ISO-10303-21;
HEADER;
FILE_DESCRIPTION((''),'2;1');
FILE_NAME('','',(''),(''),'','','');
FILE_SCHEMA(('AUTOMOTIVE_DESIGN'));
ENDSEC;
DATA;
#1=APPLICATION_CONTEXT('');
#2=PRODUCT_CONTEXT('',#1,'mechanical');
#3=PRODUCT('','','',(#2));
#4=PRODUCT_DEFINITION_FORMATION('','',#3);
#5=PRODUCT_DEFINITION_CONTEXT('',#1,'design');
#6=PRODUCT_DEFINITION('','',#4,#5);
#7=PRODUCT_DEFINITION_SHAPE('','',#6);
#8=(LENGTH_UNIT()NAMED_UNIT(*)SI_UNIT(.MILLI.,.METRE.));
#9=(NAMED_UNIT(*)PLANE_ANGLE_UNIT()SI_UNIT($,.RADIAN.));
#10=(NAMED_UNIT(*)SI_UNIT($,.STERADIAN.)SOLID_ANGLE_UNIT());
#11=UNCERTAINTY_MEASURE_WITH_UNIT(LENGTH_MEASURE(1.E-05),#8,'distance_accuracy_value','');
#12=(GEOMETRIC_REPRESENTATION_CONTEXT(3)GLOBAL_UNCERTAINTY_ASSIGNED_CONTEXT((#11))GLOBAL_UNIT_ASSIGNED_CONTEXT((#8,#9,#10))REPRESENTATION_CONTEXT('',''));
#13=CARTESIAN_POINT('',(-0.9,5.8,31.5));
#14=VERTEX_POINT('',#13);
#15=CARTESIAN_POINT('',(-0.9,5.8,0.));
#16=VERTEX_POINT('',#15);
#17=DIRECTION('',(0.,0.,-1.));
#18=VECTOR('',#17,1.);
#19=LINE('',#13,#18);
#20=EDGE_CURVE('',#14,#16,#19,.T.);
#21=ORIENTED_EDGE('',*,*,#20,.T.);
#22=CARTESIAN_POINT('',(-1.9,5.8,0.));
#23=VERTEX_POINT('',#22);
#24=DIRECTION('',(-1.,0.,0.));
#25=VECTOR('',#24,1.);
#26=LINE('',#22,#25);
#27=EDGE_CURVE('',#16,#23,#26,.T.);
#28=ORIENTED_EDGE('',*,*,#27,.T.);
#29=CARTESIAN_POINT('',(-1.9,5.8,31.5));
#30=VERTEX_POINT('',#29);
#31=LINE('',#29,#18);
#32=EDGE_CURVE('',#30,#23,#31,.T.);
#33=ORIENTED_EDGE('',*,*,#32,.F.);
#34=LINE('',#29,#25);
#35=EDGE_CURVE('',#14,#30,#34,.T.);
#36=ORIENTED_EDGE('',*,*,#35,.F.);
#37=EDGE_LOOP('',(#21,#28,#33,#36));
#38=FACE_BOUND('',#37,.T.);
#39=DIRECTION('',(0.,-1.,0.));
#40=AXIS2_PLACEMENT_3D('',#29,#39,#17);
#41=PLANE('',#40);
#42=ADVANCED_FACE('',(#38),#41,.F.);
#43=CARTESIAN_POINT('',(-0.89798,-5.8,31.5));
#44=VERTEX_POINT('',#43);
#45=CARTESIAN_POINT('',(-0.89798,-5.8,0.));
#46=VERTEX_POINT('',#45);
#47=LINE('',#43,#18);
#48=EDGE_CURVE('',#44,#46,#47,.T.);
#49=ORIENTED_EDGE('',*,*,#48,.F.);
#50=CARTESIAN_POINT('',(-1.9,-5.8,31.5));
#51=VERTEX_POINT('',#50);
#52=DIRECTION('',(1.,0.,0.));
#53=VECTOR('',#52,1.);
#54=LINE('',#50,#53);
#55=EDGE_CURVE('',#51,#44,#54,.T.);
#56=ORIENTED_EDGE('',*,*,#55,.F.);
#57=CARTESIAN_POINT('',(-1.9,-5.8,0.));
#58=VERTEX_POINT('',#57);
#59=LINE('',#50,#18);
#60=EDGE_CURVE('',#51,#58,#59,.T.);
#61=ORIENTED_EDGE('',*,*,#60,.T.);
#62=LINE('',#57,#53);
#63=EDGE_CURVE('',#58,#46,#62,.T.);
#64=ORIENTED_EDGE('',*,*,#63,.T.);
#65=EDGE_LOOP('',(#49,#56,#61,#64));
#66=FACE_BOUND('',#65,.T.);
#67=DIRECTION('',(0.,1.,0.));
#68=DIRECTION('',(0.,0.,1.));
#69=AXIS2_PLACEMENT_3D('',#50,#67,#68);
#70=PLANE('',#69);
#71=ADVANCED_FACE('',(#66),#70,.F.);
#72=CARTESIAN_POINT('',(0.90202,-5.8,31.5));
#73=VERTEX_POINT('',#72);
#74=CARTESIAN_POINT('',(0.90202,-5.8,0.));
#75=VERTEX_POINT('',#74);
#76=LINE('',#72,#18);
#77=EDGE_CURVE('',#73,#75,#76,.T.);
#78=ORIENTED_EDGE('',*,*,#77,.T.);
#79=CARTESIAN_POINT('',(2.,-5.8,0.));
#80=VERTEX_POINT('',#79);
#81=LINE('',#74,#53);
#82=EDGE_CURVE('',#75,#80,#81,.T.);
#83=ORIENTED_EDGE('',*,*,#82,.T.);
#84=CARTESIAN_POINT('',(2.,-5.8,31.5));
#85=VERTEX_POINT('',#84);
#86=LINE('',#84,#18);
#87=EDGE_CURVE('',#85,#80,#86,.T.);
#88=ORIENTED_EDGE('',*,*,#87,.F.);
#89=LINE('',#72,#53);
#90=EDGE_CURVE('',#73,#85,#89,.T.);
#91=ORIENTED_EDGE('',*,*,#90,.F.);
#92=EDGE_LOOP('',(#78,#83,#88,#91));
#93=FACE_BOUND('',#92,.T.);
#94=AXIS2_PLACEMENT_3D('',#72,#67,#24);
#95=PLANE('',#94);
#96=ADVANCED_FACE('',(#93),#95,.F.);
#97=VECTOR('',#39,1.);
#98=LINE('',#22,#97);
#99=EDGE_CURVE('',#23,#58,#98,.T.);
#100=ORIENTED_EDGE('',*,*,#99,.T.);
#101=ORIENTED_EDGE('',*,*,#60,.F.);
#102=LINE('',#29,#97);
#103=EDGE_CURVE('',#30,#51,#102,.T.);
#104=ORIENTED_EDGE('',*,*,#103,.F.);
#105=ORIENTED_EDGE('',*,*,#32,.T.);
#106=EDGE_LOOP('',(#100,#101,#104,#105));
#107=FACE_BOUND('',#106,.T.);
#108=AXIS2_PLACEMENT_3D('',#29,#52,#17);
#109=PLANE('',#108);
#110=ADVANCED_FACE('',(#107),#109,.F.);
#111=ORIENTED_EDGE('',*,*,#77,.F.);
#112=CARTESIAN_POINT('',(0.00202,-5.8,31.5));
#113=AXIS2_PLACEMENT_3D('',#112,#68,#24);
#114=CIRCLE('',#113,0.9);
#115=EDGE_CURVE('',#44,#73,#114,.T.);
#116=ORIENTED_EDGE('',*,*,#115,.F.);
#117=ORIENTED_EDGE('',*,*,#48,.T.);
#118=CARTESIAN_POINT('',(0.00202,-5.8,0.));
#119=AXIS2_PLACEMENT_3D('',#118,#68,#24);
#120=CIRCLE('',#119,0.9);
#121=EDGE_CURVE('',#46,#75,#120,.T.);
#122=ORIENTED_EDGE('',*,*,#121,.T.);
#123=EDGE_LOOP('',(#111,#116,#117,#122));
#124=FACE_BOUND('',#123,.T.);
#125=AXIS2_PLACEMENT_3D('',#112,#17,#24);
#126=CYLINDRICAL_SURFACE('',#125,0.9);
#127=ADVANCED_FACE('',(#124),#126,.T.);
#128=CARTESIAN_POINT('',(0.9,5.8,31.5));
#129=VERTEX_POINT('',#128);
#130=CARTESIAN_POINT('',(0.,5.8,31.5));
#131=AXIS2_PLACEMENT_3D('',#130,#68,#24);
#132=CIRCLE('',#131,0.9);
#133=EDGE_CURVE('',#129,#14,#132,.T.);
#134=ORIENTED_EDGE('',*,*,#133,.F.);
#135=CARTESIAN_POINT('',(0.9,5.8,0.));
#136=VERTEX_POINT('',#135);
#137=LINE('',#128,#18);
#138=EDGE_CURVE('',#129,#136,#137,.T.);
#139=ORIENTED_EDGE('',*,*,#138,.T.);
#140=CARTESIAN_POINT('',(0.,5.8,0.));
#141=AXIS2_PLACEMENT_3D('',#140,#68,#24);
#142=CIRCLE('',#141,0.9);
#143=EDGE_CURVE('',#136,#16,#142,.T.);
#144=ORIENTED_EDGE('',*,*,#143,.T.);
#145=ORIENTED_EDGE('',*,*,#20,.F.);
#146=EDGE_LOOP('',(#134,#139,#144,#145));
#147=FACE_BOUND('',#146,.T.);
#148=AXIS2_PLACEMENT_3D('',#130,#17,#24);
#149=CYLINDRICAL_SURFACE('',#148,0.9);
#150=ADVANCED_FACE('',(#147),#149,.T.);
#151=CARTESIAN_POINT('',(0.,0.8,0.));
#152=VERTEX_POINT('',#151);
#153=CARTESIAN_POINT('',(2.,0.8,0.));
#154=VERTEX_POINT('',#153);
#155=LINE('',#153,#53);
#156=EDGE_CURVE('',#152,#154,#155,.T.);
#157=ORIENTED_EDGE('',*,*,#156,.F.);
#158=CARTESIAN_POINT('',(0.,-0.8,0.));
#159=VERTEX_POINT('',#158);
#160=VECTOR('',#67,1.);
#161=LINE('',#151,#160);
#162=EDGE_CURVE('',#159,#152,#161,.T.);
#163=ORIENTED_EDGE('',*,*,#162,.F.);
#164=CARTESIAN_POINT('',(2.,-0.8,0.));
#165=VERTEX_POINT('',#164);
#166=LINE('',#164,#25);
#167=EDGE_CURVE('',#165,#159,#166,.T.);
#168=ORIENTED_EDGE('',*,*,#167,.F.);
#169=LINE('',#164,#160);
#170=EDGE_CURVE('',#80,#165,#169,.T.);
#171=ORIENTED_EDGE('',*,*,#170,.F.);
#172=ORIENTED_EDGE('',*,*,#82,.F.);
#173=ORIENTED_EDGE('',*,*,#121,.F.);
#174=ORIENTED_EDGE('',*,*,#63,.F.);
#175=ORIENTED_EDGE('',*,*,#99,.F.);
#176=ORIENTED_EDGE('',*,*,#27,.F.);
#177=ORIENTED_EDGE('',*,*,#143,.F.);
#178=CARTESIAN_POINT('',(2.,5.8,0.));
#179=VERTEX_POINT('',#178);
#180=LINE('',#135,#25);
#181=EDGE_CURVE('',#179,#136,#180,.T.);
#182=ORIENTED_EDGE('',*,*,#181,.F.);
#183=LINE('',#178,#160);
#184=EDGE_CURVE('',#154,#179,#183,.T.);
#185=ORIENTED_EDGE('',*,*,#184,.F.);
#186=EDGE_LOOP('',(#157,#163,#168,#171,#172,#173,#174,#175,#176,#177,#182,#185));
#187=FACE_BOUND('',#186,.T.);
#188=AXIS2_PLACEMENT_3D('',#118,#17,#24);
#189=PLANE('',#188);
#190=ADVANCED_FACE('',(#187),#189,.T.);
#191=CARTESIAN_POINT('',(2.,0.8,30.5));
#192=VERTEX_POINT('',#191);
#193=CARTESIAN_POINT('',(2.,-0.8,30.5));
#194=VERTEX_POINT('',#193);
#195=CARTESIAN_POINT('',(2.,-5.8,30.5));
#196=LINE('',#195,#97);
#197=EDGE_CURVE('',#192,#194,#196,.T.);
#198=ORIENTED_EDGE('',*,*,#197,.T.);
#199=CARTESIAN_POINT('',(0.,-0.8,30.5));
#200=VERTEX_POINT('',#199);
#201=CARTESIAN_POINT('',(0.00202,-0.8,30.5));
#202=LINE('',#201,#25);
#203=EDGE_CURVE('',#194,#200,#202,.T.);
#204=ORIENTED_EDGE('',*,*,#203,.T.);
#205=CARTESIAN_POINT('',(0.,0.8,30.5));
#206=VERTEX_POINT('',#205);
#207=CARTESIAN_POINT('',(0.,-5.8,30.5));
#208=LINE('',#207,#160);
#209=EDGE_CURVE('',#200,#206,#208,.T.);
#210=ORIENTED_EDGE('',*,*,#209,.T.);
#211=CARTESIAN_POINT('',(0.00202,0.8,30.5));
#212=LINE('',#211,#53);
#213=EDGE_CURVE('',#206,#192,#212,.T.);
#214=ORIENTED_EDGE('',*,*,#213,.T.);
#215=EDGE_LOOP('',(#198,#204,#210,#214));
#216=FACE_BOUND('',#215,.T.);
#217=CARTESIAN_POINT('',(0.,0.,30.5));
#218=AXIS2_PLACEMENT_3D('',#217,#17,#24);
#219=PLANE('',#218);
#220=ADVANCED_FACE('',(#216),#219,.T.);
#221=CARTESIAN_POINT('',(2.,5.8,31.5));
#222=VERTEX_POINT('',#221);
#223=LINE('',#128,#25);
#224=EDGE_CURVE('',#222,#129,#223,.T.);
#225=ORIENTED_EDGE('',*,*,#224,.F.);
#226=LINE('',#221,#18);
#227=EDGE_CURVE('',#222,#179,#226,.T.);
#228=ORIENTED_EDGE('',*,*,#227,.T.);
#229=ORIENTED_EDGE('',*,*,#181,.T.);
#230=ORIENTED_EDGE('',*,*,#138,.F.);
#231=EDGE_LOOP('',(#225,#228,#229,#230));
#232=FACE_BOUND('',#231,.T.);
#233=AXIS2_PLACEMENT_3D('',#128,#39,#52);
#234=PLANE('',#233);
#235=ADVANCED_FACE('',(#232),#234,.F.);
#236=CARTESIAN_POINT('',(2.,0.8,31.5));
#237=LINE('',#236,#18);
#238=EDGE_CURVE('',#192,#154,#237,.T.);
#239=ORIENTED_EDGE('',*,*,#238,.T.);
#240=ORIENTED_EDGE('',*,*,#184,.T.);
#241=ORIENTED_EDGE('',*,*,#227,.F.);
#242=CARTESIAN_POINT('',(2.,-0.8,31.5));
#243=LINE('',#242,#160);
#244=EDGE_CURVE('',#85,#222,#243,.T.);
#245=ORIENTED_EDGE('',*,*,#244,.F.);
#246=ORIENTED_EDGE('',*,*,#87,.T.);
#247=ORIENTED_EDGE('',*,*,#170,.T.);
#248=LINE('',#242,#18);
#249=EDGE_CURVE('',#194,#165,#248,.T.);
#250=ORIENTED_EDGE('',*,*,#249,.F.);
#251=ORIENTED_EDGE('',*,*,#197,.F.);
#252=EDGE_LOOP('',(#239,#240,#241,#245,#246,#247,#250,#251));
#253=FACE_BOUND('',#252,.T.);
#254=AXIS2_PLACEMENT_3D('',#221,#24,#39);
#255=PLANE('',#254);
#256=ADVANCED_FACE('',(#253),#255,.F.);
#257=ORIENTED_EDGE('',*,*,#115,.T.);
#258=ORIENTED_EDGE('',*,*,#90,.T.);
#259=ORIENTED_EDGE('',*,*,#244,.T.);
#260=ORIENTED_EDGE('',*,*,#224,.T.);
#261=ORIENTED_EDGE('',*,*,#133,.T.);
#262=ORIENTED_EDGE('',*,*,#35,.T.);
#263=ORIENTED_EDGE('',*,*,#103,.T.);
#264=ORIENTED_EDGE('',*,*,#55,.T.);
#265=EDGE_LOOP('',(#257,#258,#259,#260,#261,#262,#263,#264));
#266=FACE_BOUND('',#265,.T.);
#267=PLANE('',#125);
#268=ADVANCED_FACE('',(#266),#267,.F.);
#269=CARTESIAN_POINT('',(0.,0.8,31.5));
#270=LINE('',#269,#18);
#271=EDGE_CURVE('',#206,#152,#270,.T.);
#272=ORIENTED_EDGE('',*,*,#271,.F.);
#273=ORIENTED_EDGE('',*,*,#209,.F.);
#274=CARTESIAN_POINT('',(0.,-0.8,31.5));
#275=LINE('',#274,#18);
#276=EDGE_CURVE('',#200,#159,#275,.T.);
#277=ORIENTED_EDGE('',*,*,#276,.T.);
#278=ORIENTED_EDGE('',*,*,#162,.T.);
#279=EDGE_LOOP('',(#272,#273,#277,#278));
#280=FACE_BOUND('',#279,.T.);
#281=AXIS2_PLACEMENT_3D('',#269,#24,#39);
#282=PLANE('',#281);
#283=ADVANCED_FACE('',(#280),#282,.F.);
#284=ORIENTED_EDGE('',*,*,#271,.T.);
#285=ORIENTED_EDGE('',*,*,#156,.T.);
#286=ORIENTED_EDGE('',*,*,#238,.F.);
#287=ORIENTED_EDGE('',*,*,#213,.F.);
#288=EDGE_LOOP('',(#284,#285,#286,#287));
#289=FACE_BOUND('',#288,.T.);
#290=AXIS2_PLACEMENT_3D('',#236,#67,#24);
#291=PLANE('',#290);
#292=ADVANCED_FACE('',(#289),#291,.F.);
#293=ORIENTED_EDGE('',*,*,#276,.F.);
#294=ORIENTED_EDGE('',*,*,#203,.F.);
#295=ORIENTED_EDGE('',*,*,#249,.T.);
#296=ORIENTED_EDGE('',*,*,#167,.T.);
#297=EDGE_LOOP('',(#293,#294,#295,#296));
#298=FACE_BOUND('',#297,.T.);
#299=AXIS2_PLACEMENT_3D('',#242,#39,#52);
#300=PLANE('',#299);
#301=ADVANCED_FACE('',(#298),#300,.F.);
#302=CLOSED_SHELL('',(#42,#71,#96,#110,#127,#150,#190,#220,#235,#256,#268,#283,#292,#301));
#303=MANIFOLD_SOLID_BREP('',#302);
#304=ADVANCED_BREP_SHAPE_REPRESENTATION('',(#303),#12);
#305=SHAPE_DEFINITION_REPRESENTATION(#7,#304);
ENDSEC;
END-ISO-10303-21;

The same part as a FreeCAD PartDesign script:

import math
import FreeCAD as App
import Part
import Sketcher
from FreeCAD import Vector

doc = App.newDocument("Part")
params = doc.addObject("Spreadsheet::Sheet", "Params")
for row, (alias, value) in enumerate([
    ("sketch1_radius", "0.9 mm"),
    ("sketch1_width", "1 mm"),
    ("sketch1_width2", "2 mm"),
    ("sketch1_height", "5 mm"),
    ("sketch1_height2", "11.6 mm"),
    ("pad1_length", "31.5 mm"),
    ("sketch2_width", "2 mm"),
    ("sketch2_height", "1.6 mm"),
    ("pad2_length", "1 mm"),
], start=1):
    params.set(f"A{row}", alias)
    params.set(f"B{row}", "=" + value)
    params.setAlias(f"B{row}", alias)

body = doc.addObject("PartDesign::Body", "Body")

# Sketch on XY plane
sketch1 = body.newObject("Sketcher::SketchObject", "Sketch")
sketch1.AttachmentSupport = (doc.getObject("XY_Plane"), [""])
sketch1.MapMode = "FlatFace"
sketch1.addGeometry([
    Part.LineSegment(Vector(-0.9, 5.8, 0), Vector(-1.9, 5.8, 0)),  # 0
    Part.LineSegment(Vector(-1.9, 5.8, 0), Vector(-1.9, -5.8, 0)),  # 1
    Part.LineSegment(Vector(-1.9, -5.8, 0), Vector(-0.9, -5.8, 0)),  # 2
    Part.ArcOfCircle(Part.Circle(Vector(0, -5.8, 0), Vector(0, 0, 1), 0.9), math.radians(180), math.radians(360)),  # 3
    Part.LineSegment(Vector(0.9, -5.8, 0), Vector(2, -5.8, 0)),  # 4
    Part.LineSegment(Vector(2, -5.8, 0), Vector(2, -0.8, 0)),  # 5
    Part.LineSegment(Vector(2, -0.8, 0), Vector(0, -0.8, 0)),  # 6
    Part.LineSegment(Vector(0, -0.8, 0), Vector(0, 0.8, 0)),  # 7
    Part.LineSegment(Vector(0, 0.8, 0), Vector(2, 0.8, 0)),  # 8
    Part.LineSegment(Vector(2, 0.8, 0), Vector(2, 5.8, 0)),  # 9
    Part.LineSegment(Vector(2, 5.8, 0), Vector(0.9, 5.8, 0)),  # 10
    Part.ArcOfCircle(Part.Circle(Vector(0, 5.8, 0), Vector(0, 0, 1), 0.9), math.radians(0), math.radians(180)),  # 11
], False)
sketch1.addConstraint([
    Sketcher.Constraint("Coincident", 0, 2, 1, 1),
    Sketcher.Constraint("Coincident", 1, 2, 2, 1),
    Sketcher.Constraint("Coincident", 2, 2, 3, 1),
    Sketcher.Constraint("Coincident", 3, 2, 4, 1),
    Sketcher.Constraint("Coincident", 4, 2, 5, 1),
    Sketcher.Constraint("Coincident", 5, 2, 6, 1),
    Sketcher.Constraint("Coincident", 6, 2, 7, 1),
    Sketcher.Constraint("Coincident", 7, 2, 8, 1),
    Sketcher.Constraint("Coincident", 8, 2, 9, 1),
    Sketcher.Constraint("Coincident", 9, 2, 10, 1),
    Sketcher.Constraint("Coincident", 10, 2, 11, 1),
    Sketcher.Constraint("Coincident", 11, 2, 0, 1),
    Sketcher.Constraint("Horizontal", 0),
    Sketcher.Constraint("Vertical", 1),
    Sketcher.Constraint("Horizontal", 2),
    Sketcher.Constraint("Horizontal", 4),
    Sketcher.Constraint("Vertical", 5),
    Sketcher.Constraint("Horizontal", 6),
    Sketcher.Constraint("Vertical", 7),
    Sketcher.Constraint("Horizontal", 8),
    Sketcher.Constraint("Vertical", 9),
    Sketcher.Constraint("Horizontal", 10),
    Sketcher.Constraint("Equal", 3, 11),
    Sketcher.Constraint("Symmetric", 6, 2, 7, 2, -1, 1),
    Sketcher.Constraint("Symmetric", 10, 2, 11, 2, -2),
    Sketcher.Constraint("Symmetric", 4, 2, 9, 2, -1),
    Sketcher.Constraint("Horizontal", 11, 3, 0, 2),
    Sketcher.Constraint("Horizontal", 3, 3, 1, 2),
    Sketcher.Constraint("Horizontal", 2, 2, 3, 2),
    Sketcher.Constraint("Radius", 3, 0.9),
    Sketcher.Constraint("DistanceX", 0, 2, 0, 1, 1.0),
    Sketcher.Constraint("DistanceX", 6, 2, 6, 1, 2.0),
    Sketcher.Constraint("DistanceY", 5, 1, 5, 2, 5.0),
    Sketcher.Constraint("DistanceY", 1, 2, 1, 1, 11.6),
    Sketcher.Constraint("DistanceX", 2, 1, 2, 2, 1.00202),
])
sketch1.setExpression("Constraints[29]", "Params.sketch1_radius")
sketch1.setExpression("Constraints[30]", "Params.sketch1_width")
sketch1.setExpression("Constraints[31]", "Params.sketch1_width2")
sketch1.setExpression("Constraints[32]", "Params.sketch1_height")
sketch1.setExpression("Constraints[33]", "Params.sketch1_height2")
pad1 = body.newObject("PartDesign::Pad", "Pad")
pad1.Profile = sketch1
pad1.setExpression("Length", "Params.pad1_length")

# Sketch on XY plane
sketch2 = body.newObject("Sketcher::SketchObject", "Sketch001")
sketch2.AttachmentSupport = (doc.getObject("XY_Plane"), [""])
sketch2.MapMode = "FlatFace"
sketch2.AttachmentOffset = App.Placement(Vector(0, 0, 31.5), App.Rotation())
sketch2.addGeometry([
    Part.LineSegment(Vector(2, 0.8, 0), Vector(2, -0.8, 0)),
    Part.LineSegment(Vector(2, -0.8, 0), Vector(0, -0.8, 0)),
    Part.LineSegment(Vector(0, -0.8, 0), Vector(0, 0.8, 0)),
    Part.LineSegment(Vector(0, 0.8, 0), Vector(2, 0.8, 0)),
], False)
sketch2.addConstraint([
    Sketcher.Constraint("Coincident", 0, 2, 1, 1),
    Sketcher.Constraint("Coincident", 1, 2, 2, 1),
    Sketcher.Constraint("Coincident", 2, 2, 3, 1),
    Sketcher.Constraint("Coincident", 3, 2, 0, 1),
    Sketcher.Constraint("Vertical", 0),
    Sketcher.Constraint("Horizontal", 1),
    Sketcher.Constraint("Vertical", 2),
    Sketcher.Constraint("Horizontal", 3),
    Sketcher.Constraint("Symmetric", 1, 2, 2, 2, -1, 1),
    Sketcher.Constraint("DistanceX", 1, 2, 1, 1, 2.0),
    Sketcher.Constraint("DistanceY", 0, 2, 0, 1, 1.6),
])
sketch2.setExpression("Constraints[9]", "Params.sketch2_width")
sketch2.setExpression("Constraints[10]", "Params.sketch2_height")
pad2 = body.newObject("PartDesign::Pad", "Pad001")
pad2.Profile = sketch2
pad2.setExpression("Length", "Params.pad2_length")
pad2.Reversed = True

doc.recompute()
